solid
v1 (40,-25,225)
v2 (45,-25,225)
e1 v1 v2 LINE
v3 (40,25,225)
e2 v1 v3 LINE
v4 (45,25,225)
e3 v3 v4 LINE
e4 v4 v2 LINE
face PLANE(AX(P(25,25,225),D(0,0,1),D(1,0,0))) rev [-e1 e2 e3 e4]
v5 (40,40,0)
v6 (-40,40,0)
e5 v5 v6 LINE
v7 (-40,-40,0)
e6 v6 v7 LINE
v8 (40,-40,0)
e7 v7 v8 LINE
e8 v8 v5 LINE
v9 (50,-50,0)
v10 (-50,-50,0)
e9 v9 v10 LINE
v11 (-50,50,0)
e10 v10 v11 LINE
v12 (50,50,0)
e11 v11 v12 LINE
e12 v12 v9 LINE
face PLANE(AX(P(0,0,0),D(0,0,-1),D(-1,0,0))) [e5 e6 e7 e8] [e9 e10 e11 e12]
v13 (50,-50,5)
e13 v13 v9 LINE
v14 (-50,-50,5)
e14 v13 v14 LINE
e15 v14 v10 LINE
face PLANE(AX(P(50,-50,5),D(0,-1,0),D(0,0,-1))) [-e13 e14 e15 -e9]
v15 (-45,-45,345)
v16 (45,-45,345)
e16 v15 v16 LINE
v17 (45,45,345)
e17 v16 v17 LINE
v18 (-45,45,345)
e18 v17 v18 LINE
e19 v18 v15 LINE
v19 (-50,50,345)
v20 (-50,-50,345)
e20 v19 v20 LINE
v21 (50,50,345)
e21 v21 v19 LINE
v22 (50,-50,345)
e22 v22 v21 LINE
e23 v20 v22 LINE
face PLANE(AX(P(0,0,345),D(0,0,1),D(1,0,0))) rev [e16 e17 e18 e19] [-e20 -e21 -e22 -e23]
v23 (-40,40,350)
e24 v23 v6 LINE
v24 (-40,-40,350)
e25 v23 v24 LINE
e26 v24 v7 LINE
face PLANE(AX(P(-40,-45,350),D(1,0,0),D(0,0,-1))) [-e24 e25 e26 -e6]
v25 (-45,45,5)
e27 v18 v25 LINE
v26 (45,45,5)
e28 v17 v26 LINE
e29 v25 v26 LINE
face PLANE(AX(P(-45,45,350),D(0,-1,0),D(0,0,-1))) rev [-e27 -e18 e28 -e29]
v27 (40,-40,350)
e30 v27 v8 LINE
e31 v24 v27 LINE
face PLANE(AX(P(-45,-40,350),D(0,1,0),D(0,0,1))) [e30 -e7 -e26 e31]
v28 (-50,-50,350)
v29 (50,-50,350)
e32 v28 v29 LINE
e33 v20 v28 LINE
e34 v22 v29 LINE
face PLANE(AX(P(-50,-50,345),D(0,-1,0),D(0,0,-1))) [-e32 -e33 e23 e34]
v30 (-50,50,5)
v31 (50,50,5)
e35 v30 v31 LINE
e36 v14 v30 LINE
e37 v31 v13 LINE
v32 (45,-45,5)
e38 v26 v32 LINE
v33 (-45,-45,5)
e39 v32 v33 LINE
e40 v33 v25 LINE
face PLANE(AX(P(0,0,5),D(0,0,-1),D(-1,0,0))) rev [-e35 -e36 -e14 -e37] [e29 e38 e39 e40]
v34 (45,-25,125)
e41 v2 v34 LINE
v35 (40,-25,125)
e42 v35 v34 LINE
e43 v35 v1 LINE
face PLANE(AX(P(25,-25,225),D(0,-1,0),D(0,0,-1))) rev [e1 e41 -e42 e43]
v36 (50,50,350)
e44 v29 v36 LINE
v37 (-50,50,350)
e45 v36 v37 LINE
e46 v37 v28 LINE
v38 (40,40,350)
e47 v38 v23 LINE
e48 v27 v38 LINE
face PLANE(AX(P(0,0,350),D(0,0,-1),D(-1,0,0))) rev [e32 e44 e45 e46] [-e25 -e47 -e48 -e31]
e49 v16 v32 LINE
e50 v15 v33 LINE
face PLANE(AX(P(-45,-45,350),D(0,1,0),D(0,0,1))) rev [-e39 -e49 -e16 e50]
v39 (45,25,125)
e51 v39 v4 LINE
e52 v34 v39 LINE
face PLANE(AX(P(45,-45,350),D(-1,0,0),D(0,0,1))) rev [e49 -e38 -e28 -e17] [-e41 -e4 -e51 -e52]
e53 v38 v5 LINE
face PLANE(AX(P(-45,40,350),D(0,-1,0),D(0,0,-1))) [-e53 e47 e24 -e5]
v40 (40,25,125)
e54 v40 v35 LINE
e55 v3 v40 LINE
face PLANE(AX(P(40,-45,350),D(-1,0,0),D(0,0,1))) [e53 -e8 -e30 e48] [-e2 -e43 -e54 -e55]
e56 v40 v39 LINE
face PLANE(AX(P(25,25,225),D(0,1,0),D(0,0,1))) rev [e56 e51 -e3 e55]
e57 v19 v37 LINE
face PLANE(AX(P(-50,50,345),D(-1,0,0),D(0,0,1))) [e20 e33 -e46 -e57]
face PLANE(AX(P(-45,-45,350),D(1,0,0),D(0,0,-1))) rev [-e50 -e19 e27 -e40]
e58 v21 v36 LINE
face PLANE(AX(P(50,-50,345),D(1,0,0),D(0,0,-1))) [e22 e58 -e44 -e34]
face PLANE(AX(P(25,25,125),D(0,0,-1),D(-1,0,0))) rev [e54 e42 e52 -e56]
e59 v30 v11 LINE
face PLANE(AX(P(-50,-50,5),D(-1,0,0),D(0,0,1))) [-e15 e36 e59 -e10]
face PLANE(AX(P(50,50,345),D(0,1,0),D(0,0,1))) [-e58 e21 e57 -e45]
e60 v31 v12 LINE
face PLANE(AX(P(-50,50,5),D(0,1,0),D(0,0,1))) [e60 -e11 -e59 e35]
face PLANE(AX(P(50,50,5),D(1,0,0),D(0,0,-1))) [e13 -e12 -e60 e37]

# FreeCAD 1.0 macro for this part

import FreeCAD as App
import Part
import Sketcher
from FreeCAD import Vector
Q = App.Units.Quantity


def faces_at(feature, points):
    """Names of the faces that lie closest to the given points."""
    faces = feature.Shape.Faces
    near = lambda p: min(range(len(faces)), key=lambda i: faces[i].distToShape(Part.Vertex(*p))[0])
    return sorted({f"Face{near(p) + 1}" for p in points})

doc = App.newDocument("Part")
body = doc.addObject("PartDesign::Body", "Body")

# Sketch on XY plane
sketch1 = body.newObject("Sketcher::SketchObject", "Sketch")
sketch1.AttachmentSupport = (doc.getObject("XY_Plane"), [""])
sketch1.MapMode = "FlatFace"
sketch1.addGeometry([
    Part.LineSegment(Vector(-45, 45, 0), Vector(-45, -45, 0)),
    Part.LineSegment(Vector(-45, -45, 0), Vector(45, -45, 0)),
    Part.LineSegment(Vector(45, -45, 0), Vector(45, 45, 0)),
    Part.LineSegment(Vector(45, 45, 0), Vector(-45, 45, 0)),
], False)
sketch1.addConstraint([
    Sketcher.Constraint("Coincident", 0, 2, 1, 1),
    Sketcher.Constraint("Coincident", 1, 2, 2, 1),
    Sketcher.Constraint("Coincident", 2, 2, 3, 1),
    Sketcher.Constraint("Coincident", 3, 2, 0, 1),
    Sketcher.Constraint("Vertical", 0),
    Sketcher.Constraint("Horizontal", 1),
    Sketcher.Constraint("Vertical", 2),
    Sketcher.Constraint("Horizontal", 3),
    Sketcher.Constraint("Symmetric", 0, 2, 2, 2, -1, 1),
    Sketcher.Constraint("Equal", 3, 0),
    Sketcher.Constraint("DistanceX", 1, 1, 1, 2, Q("90 mm")),
])
pad1 = body.newObject("PartDesign::Pad", "Pad")
pad1.Profile = sketch1
pad1.Length = 350
doc.recompute()

thickness = body.newObject("PartDesign::Thickness", "Thickness")
thickness.Base = (pad1, faces_at(pad1, [(0, 0, 350), (0, 0, 0)]))
thickness.Value = 5
thickness.Reversed = True
thickness.Join = "Intersection"

# Sketch on YZ plane
sketch2 = body.newObject("Sketcher::SketchObject", "Sketch001")
sketch2.AttachmentSupport = (doc.getObject("YZ_Plane"), [""])
sketch2.MapMode = "FlatFace"
sketch2.AttachmentOffset = App.Placement(Vector(0, 0, 45), App.Rotation())
sketch2.addGeometry([
    Part.LineSegment(Vector(25, 225, 0), Vector(-25, 225, 0)),
    Part.LineSegment(Vector(-25, 225, 0), Vector(-25, 125, 0)),
    Part.LineSegment(Vector(-25, 125, 0), Vector(25, 125, 0)),
    Part.LineSegment(Vector(25, 125, 0), Vector(25, 225, 0)),
], False)
sketch2.addConstraint([
    Sketcher.Constraint("Coincident", 0, 2, 1, 1),
    Sketcher.Constraint("Coincident", 1, 2, 2, 1),
    Sketcher.Constraint("Coincident", 2, 2, 3, 1),
    Sketcher.Constraint("Coincident", 3, 2, 0, 1),
    Sketcher.Constraint("Horizontal", 0),
    Sketcher.Constraint("Vertical", 1),
    Sketcher.Constraint("Horizontal", 2),
    Sketcher.Constraint("Vertical", 3),
    Sketcher.Constraint("DistanceX", 0, 2, 0, 1, Q("50 mm")),
    Sketcher.Constraint("DistanceY", 1, 2, 1, 1, Q("100 mm")),
    Sketcher.Constraint("DistanceX", 0, 2, -1, 1, Q("25 mm")),
    Sketcher.Constraint("DistanceY", -1, 1, 0, 2, Q("225 mm")),
])
pocket1 = body.newObject("PartDesign::Pocket", "Pocket")
pocket1.Profile = sketch2
pocket1.Length = 20

# Sketch on XY plane
sketch3 = body.newObject("Sketcher::SketchObject", "Sketch002")
sketch3.AttachmentSupport = (doc.getObject("XY_Plane"), [""])
sketch3.MapMode = "FlatFace"
sketch3.AttachmentOffset = App.Placement(Vector(0, 0, 350), App.Rotation())
sketch3.addGeometry([
    Part.LineSegment(Vector(-50, 50, 0), Vector(-50, -50, 0)),  # 0
    Part.LineSegment(Vector(-50, -50, 0), Vector(50, -50, 0)),  # 1
    Part.LineSegment(Vector(50, -50, 0), Vector(50, 50, 0)),  # 2
    Part.LineSegment(Vector(50, 50, 0), Vector(-50, 50, 0)),  # 3
    Part.LineSegment(Vector(45, -45, 0), Vector(-45, -45, 0)),  # 4
    Part.LineSegment(Vector(-45, -45, 0), Vector(-45, 45, 0)),  # 5
    Part.LineSegment(Vector(-45, 45, 0), Vector(45, 45, 0)),  # 6
    Part.LineSegment(Vector(45, 45, 0), Vector(45, -45, 0)),  # 7
], False)
sketch3.addConstraint([
    Sketcher.Constraint("Coincident", 0, 2, 1, 1),
    Sketcher.Constraint("Coincident", 1, 2, 2, 1),
    Sketcher.Constraint("Coincident", 2, 2, 3, 1),
    Sketcher.Constraint("Coincident", 3, 2, 0, 1),
    Sketcher.Constraint("Coincident", 4, 2, 5, 1),
    Sketcher.Constraint("Coincident", 5, 2, 6, 1),
    Sketcher.Constraint("Coincident", 6, 2, 7, 1),
    Sketcher.Constraint("Coincident", 7, 2, 4, 1),
    Sketcher.Constraint("Vertical", 0),
    Sketcher.Constraint("Horizontal", 1),
    Sketcher.Constraint("Vertical", 2),
    Sketcher.Constraint("Horizontal", 3),
    Sketcher.Constraint("Horizontal", 4),
    Sketcher.Constraint("Vertical", 5),
    Sketcher.Constraint("Horizontal", 6),
    Sketcher.Constraint("Vertical", 7),
    Sketcher.Constraint("Symmetric", 0, 2, 2, 2, -1, 1),
    Sketcher.Constraint("Symmetric", 4, 2, 6, 2, -1, 1),
    Sketcher.Constraint("Equal", 3, 0),
    Sketcher.Constraint("Equal", 6, 5),
    Sketcher.Constraint("DistanceX", 1, 1, 1, 2, Q("100 mm")),
    Sketcher.Constraint("DistanceX", 4, 2, 4, 1, Q("90 mm")),
])
pad2 = body.newObject("PartDesign::Pad", "Pad001")
pad2.Profile = sketch3
pad2.Length = 5
pad2.Reversed = True

# Sketch on XY plane
sketch4 = body.newObject("Sketcher::SketchObject", "Sketch003")
sketch4.AttachmentSupport = (doc.getObject("XY_Plane"), [""])
sketch4.MapMode = "FlatFace"
sketch4.addGeometry([
    Part.LineSegment(Vector(50, 50, 0), Vector(50, -50, 0)),  # 0
    Part.LineSegment(Vector(50, -50, 0), Vector(-50, -50, 0)),  # 1
    Part.LineSegment(Vector(-50, -50, 0), Vector(-50, 50, 0)),  # 2
    Part.LineSegment(Vector(-50, 50, 0), Vector(50, 50, 0)),  # 3
    Part.LineSegment(Vector(-45, -45, 0), Vector(45, -45, 0)),  # 4
    Part.LineSegment(Vector(45, -45, 0), Vector(45, 45, 0)),  # 5
    Part.LineSegment(Vector(45, 45, 0), Vector(-45, 45, 0)),  # 6
    Part.LineSegment(Vector(-45, 45, 0), Vector(-45, -45, 0)),  # 7
], False)
sketch4.addConstraint([
    Sketcher.Constraint("Coincident", 0, 2, 1, 1),
    Sketcher.Constraint("Coincident", 1, 2, 2, 1),
    Sketcher.Constraint("Coincident", 2, 2, 3, 1),
    Sketcher.Constraint("Coincident", 3, 2, 0, 1),
    Sketcher.Constraint("Coincident", 4, 2, 5, 1),
    Sketcher.Constraint("Coincident", 5, 2, 6, 1),
    Sketcher.Constraint("Coincident", 6, 2, 7, 1),
    Sketcher.Constraint("Coincident", 7, 2, 4, 1),
    Sketcher.Constraint("Vertical", 0),
    Sketcher.Constraint("Horizontal", 1),
    Sketcher.Constraint("Vertical", 2),
    Sketcher.Constraint("Horizontal", 3),
    Sketcher.Constraint("Horizontal", 4),
    Sketcher.Constraint("Vertical", 5),
    Sketcher.Constraint("Horizontal", 6),
    Sketcher.Constraint("Vertical", 7),
    Sketcher.Constraint("Symmetric", 0, 2, 2, 2, -1, 1),
    Sketcher.Constraint("Symmetric", 4, 2, 6, 2, -1, 1),
    Sketcher.Constraint("Equal", 3, 0),
    Sketcher.Constraint("Equal", 6, 5),
    Sketcher.Constraint("DistanceX", 1, 2, 1, 1, Q("100 mm")),
    Sketcher.Constraint("DistanceX", 4, 1, 4, 2, Q("90 mm")),
])
pad3 = body.newObject("PartDesign::Pad", "Pad002")
pad3.Profile = sketch4
pad3.Length = 5

doc.recompute()
